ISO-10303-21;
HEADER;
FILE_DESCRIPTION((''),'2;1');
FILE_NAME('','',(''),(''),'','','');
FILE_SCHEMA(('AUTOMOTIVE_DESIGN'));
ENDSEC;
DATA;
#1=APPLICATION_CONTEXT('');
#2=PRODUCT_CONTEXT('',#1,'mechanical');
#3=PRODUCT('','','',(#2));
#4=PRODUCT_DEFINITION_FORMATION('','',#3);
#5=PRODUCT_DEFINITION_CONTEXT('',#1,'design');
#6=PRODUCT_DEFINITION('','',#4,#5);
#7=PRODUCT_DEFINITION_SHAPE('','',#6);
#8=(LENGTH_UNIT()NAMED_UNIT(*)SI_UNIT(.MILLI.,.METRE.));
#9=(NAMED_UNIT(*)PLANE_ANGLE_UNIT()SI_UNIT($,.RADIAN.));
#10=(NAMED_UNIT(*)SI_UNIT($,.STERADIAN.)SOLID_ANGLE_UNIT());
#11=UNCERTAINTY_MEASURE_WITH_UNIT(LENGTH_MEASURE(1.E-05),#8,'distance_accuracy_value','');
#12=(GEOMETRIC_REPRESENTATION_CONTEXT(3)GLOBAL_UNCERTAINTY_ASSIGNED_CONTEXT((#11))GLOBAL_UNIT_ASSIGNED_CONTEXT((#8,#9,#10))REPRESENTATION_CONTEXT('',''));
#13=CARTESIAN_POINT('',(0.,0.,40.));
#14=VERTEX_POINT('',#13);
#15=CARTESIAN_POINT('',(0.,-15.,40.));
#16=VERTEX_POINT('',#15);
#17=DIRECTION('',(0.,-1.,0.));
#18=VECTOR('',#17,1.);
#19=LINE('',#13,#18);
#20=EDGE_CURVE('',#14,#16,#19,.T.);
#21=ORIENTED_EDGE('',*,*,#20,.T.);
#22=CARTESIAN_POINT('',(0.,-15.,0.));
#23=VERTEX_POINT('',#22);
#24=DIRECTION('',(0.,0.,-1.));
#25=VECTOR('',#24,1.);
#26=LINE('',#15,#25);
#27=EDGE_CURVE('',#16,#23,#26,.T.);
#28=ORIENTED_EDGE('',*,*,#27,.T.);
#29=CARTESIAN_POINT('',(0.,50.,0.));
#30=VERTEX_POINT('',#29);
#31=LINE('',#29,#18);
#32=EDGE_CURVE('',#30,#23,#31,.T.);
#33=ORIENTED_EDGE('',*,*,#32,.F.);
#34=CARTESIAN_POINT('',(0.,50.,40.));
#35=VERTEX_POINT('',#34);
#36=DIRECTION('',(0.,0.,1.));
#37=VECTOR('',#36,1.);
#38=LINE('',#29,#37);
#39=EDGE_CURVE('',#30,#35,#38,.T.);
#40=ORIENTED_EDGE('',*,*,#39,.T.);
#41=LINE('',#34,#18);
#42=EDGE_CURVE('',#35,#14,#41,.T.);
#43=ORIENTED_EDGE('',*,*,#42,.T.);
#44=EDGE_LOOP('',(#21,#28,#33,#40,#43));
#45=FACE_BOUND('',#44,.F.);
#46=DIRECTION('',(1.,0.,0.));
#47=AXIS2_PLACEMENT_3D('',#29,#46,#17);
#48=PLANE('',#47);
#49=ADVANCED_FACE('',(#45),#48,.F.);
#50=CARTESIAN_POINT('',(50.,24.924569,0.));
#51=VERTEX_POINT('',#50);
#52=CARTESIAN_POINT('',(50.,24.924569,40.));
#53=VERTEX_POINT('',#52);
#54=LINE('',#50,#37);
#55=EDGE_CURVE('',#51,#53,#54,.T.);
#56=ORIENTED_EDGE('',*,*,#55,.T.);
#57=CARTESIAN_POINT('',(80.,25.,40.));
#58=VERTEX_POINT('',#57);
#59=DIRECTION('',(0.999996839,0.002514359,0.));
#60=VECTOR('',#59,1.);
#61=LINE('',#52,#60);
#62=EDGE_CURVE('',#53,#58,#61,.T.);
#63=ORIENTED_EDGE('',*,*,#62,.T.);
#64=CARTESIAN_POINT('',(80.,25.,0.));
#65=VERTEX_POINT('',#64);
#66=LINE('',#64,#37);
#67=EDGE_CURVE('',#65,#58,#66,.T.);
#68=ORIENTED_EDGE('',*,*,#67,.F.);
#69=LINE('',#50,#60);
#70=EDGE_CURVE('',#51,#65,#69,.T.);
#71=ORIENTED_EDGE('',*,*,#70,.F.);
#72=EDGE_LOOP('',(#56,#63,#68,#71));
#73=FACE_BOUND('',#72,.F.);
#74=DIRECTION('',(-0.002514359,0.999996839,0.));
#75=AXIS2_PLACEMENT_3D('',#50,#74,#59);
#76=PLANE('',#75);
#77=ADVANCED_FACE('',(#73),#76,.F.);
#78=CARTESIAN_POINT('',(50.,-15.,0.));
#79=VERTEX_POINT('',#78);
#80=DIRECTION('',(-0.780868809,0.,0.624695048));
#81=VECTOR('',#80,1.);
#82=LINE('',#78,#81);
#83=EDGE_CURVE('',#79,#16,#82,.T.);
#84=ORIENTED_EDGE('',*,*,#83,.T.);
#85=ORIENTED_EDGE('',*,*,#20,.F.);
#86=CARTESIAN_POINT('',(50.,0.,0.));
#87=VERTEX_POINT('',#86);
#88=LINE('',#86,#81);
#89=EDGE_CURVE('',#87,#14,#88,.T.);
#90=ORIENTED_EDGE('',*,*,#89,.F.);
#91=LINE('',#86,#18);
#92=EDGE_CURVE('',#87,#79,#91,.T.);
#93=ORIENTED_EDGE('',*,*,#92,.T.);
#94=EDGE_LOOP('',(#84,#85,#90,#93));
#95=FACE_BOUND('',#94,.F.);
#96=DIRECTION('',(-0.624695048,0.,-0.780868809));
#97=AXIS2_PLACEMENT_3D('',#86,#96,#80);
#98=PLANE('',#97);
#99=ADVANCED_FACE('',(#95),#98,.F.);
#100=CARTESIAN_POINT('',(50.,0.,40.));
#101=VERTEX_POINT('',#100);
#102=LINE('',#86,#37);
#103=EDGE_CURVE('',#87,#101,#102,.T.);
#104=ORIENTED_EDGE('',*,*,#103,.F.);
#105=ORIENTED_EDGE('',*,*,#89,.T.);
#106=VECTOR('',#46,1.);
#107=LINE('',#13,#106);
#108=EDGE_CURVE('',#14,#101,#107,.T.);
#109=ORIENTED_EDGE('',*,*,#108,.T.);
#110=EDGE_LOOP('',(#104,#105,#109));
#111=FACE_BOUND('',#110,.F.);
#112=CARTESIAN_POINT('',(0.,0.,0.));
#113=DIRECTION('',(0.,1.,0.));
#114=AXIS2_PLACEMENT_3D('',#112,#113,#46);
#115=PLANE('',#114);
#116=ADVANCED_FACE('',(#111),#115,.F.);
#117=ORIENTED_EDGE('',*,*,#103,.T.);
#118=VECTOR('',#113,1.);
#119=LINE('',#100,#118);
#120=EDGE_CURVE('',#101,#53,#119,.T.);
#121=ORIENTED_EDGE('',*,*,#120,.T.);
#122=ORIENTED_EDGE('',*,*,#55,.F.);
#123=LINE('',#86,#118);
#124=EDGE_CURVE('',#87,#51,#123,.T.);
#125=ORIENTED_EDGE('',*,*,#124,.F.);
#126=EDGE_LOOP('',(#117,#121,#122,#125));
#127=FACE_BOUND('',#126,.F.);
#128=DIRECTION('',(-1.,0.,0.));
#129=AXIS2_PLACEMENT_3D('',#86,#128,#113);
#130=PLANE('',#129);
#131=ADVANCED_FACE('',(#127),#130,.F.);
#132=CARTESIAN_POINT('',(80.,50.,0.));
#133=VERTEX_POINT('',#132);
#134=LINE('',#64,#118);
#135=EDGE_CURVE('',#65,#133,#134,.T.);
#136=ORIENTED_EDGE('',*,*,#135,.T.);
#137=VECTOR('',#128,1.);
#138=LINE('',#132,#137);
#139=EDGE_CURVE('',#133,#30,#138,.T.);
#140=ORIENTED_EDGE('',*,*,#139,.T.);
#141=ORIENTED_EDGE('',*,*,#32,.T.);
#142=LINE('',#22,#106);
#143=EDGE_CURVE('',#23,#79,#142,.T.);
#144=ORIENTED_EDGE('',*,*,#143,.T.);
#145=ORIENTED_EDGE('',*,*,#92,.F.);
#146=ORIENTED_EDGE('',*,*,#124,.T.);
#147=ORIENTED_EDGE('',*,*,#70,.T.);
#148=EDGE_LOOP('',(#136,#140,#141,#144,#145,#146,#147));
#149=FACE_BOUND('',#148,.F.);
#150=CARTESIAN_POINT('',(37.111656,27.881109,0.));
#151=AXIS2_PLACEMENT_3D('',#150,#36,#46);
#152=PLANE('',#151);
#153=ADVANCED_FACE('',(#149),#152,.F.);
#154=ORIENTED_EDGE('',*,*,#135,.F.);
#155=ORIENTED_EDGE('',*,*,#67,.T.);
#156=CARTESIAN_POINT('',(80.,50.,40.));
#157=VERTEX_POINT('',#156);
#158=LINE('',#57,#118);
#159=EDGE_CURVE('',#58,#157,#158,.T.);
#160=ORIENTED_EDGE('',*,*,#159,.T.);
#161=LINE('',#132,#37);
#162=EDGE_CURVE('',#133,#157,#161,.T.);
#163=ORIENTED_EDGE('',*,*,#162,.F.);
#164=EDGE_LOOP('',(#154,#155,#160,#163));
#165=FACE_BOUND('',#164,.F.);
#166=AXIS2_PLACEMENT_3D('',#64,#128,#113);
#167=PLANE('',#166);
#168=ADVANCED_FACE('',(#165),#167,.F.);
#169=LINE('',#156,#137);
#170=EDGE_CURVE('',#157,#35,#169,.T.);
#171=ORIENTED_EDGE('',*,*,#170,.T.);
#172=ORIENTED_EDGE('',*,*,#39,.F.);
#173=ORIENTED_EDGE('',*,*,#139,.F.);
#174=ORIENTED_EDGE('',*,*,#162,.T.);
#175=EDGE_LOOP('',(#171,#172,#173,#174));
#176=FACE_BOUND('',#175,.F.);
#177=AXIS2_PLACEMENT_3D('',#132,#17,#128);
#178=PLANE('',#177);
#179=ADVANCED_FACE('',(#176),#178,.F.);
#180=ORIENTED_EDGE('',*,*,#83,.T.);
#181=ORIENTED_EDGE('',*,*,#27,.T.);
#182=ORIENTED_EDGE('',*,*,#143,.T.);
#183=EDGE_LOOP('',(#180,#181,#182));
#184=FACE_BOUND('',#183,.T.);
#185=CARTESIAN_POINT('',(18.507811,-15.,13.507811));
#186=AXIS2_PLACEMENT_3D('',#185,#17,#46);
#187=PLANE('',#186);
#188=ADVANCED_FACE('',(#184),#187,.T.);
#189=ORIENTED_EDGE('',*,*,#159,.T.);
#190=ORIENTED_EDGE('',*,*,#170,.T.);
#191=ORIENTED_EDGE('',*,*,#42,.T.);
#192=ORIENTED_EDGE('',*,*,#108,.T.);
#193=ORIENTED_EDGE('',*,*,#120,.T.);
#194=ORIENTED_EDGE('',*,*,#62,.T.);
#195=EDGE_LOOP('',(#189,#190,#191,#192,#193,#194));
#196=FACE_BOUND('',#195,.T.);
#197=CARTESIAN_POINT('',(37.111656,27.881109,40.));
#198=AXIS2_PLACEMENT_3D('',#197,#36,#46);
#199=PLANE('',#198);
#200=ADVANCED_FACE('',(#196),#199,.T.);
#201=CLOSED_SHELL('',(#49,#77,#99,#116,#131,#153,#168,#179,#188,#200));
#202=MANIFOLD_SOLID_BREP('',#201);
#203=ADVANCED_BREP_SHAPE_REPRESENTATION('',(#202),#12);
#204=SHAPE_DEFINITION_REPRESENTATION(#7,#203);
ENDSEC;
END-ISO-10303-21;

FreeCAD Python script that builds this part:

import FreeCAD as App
import Part
import Sketcher
Q = App.Units.Quantity


def add_polygon(sketch, points):
    """Adds a closed chain of lines whose ends are joined by coincident constraints."""
    first, n = sketch.GeometryCount, len(points)
    for a, b in zip(points, points[1:] + points[:1]):
        sketch.addGeometry(Part.LineSegment(App.Vector(*a, 0), App.Vector(*b, 0)), False)
    for i in range(n):
        sketch.addConstraint(Sketcher.Constraint("Coincident", first + i, 2, first + (i + 1) % n, 1))

doc = App.newDocument("Part")
body = doc.addObject("PartDesign::Body", "Body")

# Sketch on XZ plane
sketch1 = body.newObject("Sketcher::SketchObject", "Sketch")
sketch1.AttachmentSupport = (doc.getObject("XZ_Plane"), [""])
sketch1.MapMode = "FlatFace"
add_polygon(sketch1, [(0, 40), (0, 0), (50, 0)])  # lines 0-2
sketch1.addConstraint([
    Sketcher.Constraint("Vertical", 0),
    Sketcher.Constraint("Horizontal", 1),
    Sketcher.Constraint("Coincident", 0, 2, -1, 1),
    Sketcher.Constraint("DistanceX", 1, 1, 1, 2, Q("50 mm")),
    Sketcher.Constraint("DistanceY", 0, 2, 0, 1, Q("40 mm")),
])
pad1 = body.newObject("PartDesign::Pad", "Pad")
pad1.Profile = sketch1
pad1.Length = 15

# Sketch on XY plane
sketch2 = body.newObject("Sketcher::SketchObject", "Sketch001")
sketch2.AttachmentSupport = (doc.getObject("XY_Plane"), [""])
sketch2.MapMode = "FlatFace"
add_polygon(sketch2, [(0, 50), (0, 0), (50, 0), (50, 25), (80, 25), (80, 50)])  # lines 0-5
sketch2.addConstraint([
    Sketcher.Constraint("Vertical", 0),
    Sketcher.Constraint("Horizontal", 1),
    Sketcher.Constraint("Vertical", 2),
    Sketcher.Constraint("Vertical", 4),
    Sketcher.Constraint("Horizontal", 5),
    Sketcher.Constraint("Coincident", 0, 2, -1, 1),
    Sketcher.Constraint("Equal", 1, 0),
    Sketcher.Constraint("DistanceX", 1, 1, 1, 2, Q("50 mm")),
    Sketcher.Constraint("DistanceX", 5, 2, 5, 1, Q("80 mm")),
    Sketcher.Constraint("DistanceY", 4, 1, 4, 2, Q("25 mm")),
    Sketcher.Constraint("DistanceY", 2, 1, 2, 2, Q("24.924569 mm")),
])
pad2 = body.newObject("PartDesign::Pad", "Pad001")
pad2.Profile = sketch2
pad2.Length = 40

doc.recompute()
